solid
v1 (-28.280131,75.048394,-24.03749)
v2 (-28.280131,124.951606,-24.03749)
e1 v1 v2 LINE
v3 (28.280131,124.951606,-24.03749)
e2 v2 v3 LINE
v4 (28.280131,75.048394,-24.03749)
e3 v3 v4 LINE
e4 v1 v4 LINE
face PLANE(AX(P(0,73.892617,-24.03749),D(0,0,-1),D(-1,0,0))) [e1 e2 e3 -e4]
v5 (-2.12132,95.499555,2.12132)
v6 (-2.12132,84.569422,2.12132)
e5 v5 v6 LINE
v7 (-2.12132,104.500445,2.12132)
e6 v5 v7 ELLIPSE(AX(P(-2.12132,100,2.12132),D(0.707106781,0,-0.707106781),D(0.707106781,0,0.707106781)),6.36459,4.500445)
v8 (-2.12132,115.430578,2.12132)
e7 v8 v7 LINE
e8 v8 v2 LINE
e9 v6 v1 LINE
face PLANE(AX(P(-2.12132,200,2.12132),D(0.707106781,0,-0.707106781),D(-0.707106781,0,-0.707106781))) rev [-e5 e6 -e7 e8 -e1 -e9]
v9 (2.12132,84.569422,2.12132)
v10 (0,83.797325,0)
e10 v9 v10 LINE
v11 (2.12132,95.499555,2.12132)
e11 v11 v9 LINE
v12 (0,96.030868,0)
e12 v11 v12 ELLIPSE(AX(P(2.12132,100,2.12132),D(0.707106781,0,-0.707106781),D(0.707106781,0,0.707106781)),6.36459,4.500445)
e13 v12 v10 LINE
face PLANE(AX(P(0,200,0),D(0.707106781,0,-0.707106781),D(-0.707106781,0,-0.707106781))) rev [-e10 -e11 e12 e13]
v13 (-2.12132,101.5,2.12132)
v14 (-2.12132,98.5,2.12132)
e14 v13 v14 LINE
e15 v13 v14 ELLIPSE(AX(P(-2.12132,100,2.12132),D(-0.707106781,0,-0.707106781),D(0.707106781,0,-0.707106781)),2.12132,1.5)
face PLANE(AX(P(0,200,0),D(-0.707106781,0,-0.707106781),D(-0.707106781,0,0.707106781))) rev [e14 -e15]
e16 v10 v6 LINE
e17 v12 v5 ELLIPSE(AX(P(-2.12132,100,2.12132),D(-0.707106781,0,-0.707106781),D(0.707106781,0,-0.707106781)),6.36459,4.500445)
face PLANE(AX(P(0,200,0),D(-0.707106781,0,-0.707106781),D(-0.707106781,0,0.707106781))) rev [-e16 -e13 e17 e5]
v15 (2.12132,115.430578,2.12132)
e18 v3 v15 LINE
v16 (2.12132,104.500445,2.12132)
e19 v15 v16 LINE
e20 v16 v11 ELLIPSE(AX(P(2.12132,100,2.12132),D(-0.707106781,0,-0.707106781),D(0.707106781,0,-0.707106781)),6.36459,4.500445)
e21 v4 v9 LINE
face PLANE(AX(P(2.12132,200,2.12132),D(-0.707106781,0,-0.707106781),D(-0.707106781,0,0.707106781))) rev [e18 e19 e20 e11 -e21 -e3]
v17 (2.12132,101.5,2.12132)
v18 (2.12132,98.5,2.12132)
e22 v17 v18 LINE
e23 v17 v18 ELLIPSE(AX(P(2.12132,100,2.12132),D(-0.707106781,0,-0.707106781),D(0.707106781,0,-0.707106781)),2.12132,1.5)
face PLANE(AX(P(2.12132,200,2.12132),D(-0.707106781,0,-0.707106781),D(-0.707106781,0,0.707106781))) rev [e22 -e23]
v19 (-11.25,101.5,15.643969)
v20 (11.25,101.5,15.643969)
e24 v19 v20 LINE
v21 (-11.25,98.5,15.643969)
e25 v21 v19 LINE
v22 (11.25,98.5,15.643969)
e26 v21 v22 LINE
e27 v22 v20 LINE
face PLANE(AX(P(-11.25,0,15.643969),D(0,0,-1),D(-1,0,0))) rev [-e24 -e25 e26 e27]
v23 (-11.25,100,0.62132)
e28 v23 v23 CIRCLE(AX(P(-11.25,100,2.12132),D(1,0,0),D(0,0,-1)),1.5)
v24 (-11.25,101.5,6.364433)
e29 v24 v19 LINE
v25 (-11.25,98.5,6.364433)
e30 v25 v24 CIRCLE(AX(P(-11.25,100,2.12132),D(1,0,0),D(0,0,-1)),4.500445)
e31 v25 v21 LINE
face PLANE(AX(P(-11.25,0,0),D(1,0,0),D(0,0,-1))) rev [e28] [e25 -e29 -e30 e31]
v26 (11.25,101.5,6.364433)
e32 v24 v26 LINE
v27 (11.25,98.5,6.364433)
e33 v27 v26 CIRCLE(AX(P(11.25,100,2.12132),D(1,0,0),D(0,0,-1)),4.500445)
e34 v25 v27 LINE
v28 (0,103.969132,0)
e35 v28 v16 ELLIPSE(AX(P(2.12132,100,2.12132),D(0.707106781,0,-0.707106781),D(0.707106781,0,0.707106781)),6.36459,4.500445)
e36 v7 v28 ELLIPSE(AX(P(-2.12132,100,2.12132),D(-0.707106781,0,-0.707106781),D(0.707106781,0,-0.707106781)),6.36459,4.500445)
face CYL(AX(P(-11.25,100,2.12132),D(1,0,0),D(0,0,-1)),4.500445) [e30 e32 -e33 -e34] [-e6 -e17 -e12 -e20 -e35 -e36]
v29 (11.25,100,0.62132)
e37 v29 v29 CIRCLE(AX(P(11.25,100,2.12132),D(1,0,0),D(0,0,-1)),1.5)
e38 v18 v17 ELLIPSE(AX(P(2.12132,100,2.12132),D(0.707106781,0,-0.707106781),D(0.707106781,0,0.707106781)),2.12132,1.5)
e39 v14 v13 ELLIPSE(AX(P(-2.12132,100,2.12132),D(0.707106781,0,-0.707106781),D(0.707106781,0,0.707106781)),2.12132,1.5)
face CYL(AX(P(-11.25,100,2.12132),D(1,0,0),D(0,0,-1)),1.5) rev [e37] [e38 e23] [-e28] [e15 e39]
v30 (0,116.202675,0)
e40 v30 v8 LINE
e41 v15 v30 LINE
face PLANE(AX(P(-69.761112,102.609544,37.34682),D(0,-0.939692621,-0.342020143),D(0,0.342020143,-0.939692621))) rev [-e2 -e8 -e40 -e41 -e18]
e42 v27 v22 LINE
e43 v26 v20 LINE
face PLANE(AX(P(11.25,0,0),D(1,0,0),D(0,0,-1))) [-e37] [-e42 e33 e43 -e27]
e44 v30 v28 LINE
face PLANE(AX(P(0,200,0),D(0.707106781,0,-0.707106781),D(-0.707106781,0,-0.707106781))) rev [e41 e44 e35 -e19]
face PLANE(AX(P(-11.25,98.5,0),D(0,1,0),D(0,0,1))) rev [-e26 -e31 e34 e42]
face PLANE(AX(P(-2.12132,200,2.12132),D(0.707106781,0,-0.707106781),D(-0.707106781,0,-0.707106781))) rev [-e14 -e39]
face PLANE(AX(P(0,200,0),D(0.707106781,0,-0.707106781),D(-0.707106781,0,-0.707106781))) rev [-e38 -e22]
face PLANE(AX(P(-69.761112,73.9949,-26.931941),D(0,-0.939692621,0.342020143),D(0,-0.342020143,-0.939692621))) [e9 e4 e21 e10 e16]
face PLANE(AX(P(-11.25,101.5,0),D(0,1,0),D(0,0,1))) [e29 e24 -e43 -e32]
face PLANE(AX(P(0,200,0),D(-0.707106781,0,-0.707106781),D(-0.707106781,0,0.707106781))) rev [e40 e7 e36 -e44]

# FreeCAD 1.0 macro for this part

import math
import FreeCAD as App
import Part
import Sketcher
from FreeCAD import Vector
Q = App.Units.Quantity


def add_polygon(sketch, points):
    """Adds a closed chain of lines whose ends are joined by coincident constraints."""
    first, n = sketch.GeometryCount, len(points)
    for a, b in zip(points, points[1:] + points[:1]):
        sketch.addGeometry(Part.LineSegment(App.Vector(*a, 0), App.Vector(*b, 0)), False)
    for i in range(n):
        sketch.addConstraint(Sketcher.Constraint("Coincident", first + i, 2, first + (i + 1) % n, 1))

doc = App.newDocument("Part")
body = doc.addObject("PartDesign::Body", "Body")

# Sketch on XZ plane
sketch1 = body.newObject("Sketcher::SketchObject", "Sketch")
sketch1.AttachmentSupport = (doc.getObject("XZ_Plane"), [""])
sketch1.MapMode = "FlatFace"
add_polygon(sketch1, [(69.8, -65.5), (-69.8, -65.5), (-2.1, 2.1), (0, 0), (2.1, 2.1)])  # lines 0-4
sketch1.addConstraint([
    Sketcher.Constraint("Horizontal", 0),
    Sketcher.Constraint("Coincident", 2, 2, -1, 1),
    Sketcher.Constraint("Symmetric", 1, 2, 3, 2, -2),
    Sketcher.Constraint("Perpendicular", 1, 2),
    Sketcher.Constraint("Perpendicular", 2, 3),
    Sketcher.Constraint("Perpendicular", 3, 4),
    Sketcher.Constraint("Distance", 2, 3.0),
    Sketcher.Constraint("Distance", 1, 95.65711),
])
pad1 = body.newObject("PartDesign::Pad", "Pad")
pad1.Profile = sketch1
pad1.Length = 200
pad1.Reversed = True

# Sketch on YZ plane
sketch2 = body.newObject("Sketcher::SketchObject", "Sketch001")
sketch2.AttachmentSupport = (doc.getObject("YZ_Plane"), [""])
sketch2.MapMode = "FlatFace"
sketch2.addGeometry([
    Part.Circle(Vector(100, 2.1, 0), Vector(0, 0, 1), 150),  # 0
    Part.ArcOfCircle(Part.Circle(Vector(100, 2.1, 0), Vector(0, 0, 1), 1.5), math.radians(20), math.radians(160)),  # 1
    Part.LineSegment(Vector(101.4, 2.6, 0), Vector(113.6, 7.1, 0)),  # 2
    Part.LineSegment(Vector(113.6, 7.1, 0), Vector(126.1, -27.2, 0)),  # 3
    Part.LineSegment(Vector(126.1, -27.2, 0), Vector(73.9, -27.2, 0)),  # 4
    Part.LineSegment(Vector(73.9, -27.2, 0), Vector(86.4, 7.1, 0)),  # 5
    Part.LineSegment(Vector(86.4, 7.1, 0), Vector(98.6, 2.6, 0)),  # 6
], False)
sketch2.addConstraint([
    Sketcher.Constraint("Coincident", 1, 1, 2, 1),
    Sketcher.Constraint("Coincident", 2, 2, 3, 1),
    Sketcher.Constraint("Coincident", 3, 2, 4, 1),
    Sketcher.Constraint("Coincident", 4, 2, 5, 1),
    Sketcher.Constraint("Coincident", 5, 2, 6, 1),
    Sketcher.Constraint("Coincident", 6, 2, 1, 2),
    Sketcher.Constraint("Horizontal", 4),
    Sketcher.Constraint("Coincident", 1, 3, 0, 3),
    Sketcher.Constraint("Perpendicular", 2, 3),
    Sketcher.Constraint("Perpendicular", 5, 6),
    Sketcher.Constraint("Horizontal", 2, 2, 5, 2),
    Sketcher.Constraint("Horizontal", 1, 1, 6, 2),
    Sketcher.Constraint("Equal", 3, 5),
    Sketcher.Constraint("Diameter", 0, 300.0),
    Sketcher.Constraint("Radius", 1, 1.5),
    Sketcher.Constraint("Angle", 2, Q("20 deg")),
    Sketcher.Constraint("Distance", 2, 13.0),
    Sketcher.Constraint("DistanceX", -1, 1, 0, 3, 100.0),
    Sketcher.Constraint("DistanceX", 4, 2, 4, 1, 52.214765),
    Sketcher.Constraint("DistanceY", -1, 1, 0, 3, 2.12132),
    Sketcher.Constraint("DistanceX", -1, 1, 1, 1, 101.409539),
])
pocket1 = body.newObject("PartDesign::Pocket", "Pocket")
pocket1.Profile = sketch2
pocket1.Type = "ThroughAll"
pocket1.Midplane = True

# Sketch on YZ plane
sketch3 = body.newObject("Sketcher::SketchObject", "Sketch002")
sketch3.AttachmentSupport = (doc.getObject("YZ_Plane"), [""])
sketch3.MapMode = "FlatFace"
sketch3.addGeometry([
    Part.ArcOfCircle(Part.Circle(Vector(100, 2.1, 0), Vector(0, 0, 1), 4.5), math.radians(109), math.radians(431)),  # 0
    Part.LineSegment(Vector(101.5, 6.4, 0), Vector(101.5, 15.6, 0)),  # 1
    Part.LineSegment(Vector(101.5, 15.6, 0), Vector(98.5, 15.6, 0)),  # 2
    Part.LineSegment(Vector(98.5, 15.6, 0), Vector(98.5, 6.4, 0)),  # 3
    Part.Circle(Vector(100, 2.1, 0), Vector(0, 0, 1), 1.5),  # 4
], False)
sketch3.addConstraint([
    Sketcher.Constraint("Coincident", 0, 2, 1, 1),
    Sketcher.Constraint("Coincident", 1, 2, 2, 1),
    Sketcher.Constraint("Coincident", 2, 2, 3, 1),
    Sketcher.Constraint("Coincident", 3, 2, 0, 1),
    Sketcher.Constraint("Vertical", 1),
    Sketcher.Constraint("Horizontal", 2),
    Sketcher.Constraint("Vertical", 3),
    Sketcher.Constraint("Coincident", 4, 3, 0, 3),
    Sketcher.Constraint("Horizontal", 0, 2, 3, 2),
    Sketcher.Constraint("Diameter", 4, 3.0),
    Sketcher.Constraint("DistanceX", 2, 2, 2, 1, 3.0),
    Sketcher.Constraint("DistanceX", -1, 1, 0, 3, 100.0),
    Sketcher.Constraint("Radius", 0, 4.500445),
    Sketcher.Constraint("DistanceY", 1, 1, 1, 2, 9.279536),
    Sketcher.Constraint("DistanceY", -1, 1, 0, 3, 2.12132),
])
pad2 = body.newObject("PartDesign::Pad", "Pad001")
pad2.Profile = sketch3
pad2.Type = "TwoLengths"
pad2.Length = 11.25
pad2.Length2 = 11.25

# Sketch on XZ plane
sketch4 = body.newObject("Sketcher::SketchObject", "Sketch003")
sketch4.AttachmentSupport = (doc.getObject("XZ_Plane"), [""])
sketch4.MapMode = "FlatFace"
add_polygon(sketch4, [(93, -24), (93, -164), (-160, -164), (-160, -24)])  # lines 0-3
sketch4.addConstraint([
    Sketcher.Constraint("Vertical", 0),
    Sketcher.Constraint("Horizontal", 1),
    Sketcher.Constraint("Vertical", 2),
    Sketcher.Constraint("Horizontal", 3),
    Sketcher.Constraint("DistanceX", 1, 2, 1, 1, 253.755459),
    Sketcher.Constraint("DistanceY", 0, 2, 0, 1, 140.009888),
    Sketcher.Constraint("DistanceY", 0, 2, -1, 1, 164.047379),
    Sketcher.Constraint("DistanceX", -1, 1, 0, 2, 93.439384),
])
pocket2 = body.newObject("PartDesign::Pocket", "Pocket001")
pocket2.Profile = sketch4
pocket2.Type = "ThroughAll"
pocket2.Midplane = True

doc.recompute()
